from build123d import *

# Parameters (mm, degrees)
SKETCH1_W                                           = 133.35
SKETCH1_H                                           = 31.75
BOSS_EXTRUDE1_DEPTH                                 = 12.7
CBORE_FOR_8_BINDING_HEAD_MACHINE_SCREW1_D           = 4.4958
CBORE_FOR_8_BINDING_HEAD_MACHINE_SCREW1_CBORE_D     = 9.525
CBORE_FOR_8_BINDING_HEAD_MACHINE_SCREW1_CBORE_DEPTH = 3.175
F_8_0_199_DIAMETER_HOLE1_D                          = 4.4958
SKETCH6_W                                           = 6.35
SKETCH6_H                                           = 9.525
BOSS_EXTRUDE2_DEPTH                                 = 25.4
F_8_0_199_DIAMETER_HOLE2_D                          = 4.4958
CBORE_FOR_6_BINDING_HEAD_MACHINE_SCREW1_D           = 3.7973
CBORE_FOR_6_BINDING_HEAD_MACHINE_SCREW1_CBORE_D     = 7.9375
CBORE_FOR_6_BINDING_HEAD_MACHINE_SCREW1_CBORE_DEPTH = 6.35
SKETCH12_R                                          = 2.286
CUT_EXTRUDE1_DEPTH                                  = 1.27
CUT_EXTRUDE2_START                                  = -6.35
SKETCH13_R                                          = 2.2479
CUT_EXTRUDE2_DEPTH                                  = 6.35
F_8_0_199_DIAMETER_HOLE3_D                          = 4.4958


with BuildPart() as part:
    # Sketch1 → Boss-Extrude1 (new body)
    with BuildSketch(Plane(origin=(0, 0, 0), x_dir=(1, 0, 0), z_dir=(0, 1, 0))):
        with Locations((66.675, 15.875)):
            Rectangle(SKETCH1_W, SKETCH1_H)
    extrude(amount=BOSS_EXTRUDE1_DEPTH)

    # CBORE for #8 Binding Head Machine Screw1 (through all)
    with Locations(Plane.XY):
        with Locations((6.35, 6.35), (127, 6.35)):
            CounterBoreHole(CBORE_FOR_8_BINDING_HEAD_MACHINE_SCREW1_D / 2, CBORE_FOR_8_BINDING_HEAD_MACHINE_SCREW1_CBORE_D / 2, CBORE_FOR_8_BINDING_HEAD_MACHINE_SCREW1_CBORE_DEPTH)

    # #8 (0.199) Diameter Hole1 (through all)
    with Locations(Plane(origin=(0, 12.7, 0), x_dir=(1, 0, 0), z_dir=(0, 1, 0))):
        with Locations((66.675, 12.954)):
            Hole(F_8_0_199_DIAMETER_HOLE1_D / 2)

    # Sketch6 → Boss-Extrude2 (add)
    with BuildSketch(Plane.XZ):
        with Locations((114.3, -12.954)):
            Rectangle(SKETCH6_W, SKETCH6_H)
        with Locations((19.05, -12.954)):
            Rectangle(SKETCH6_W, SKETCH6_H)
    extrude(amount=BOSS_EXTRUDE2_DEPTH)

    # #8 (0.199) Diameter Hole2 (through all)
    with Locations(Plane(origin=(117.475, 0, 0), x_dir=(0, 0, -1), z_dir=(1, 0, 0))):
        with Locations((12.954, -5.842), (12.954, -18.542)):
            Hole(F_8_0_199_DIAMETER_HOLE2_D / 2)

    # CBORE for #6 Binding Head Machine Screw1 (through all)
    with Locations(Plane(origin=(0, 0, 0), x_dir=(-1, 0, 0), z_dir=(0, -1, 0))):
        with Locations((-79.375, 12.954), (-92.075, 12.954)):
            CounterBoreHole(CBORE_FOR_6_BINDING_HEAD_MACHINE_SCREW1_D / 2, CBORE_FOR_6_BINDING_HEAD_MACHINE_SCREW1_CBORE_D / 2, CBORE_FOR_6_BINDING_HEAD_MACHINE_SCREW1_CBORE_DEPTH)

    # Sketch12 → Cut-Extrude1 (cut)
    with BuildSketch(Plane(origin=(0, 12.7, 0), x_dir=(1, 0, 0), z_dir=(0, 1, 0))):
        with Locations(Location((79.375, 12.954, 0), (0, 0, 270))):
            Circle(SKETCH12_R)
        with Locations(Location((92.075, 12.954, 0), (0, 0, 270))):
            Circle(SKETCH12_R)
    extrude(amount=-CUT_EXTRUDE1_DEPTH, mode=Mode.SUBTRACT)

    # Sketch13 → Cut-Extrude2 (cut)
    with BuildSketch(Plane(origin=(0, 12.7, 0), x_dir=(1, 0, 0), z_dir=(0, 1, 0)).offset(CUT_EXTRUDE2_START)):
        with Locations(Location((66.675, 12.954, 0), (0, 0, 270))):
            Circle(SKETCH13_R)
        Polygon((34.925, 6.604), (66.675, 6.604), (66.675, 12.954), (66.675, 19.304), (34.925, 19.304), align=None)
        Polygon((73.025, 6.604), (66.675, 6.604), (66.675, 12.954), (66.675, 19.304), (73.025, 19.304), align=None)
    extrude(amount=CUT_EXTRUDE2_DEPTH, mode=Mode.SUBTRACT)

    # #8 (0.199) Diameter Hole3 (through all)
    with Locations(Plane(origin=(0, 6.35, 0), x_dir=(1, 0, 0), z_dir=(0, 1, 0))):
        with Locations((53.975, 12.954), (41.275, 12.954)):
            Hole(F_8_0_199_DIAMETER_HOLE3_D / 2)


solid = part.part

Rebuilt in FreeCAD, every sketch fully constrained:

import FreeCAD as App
import Part
import Sketcher
from FreeCAD import Vector
Q = App.Units.Quantity

doc = App.newDocument("Part")
body = doc.addObject("PartDesign::Body", "Body")

# Sketch on XZ plane
sketch1 = body.newObject("Sketcher::SketchObject", "Sketch")
sketch1.AttachmentSupport = (doc.getObject("XZ_Plane"), [""])
sketch1.MapMode = "FlatFace"
sketch1.addGeometry([
    Part.LineSegment(Vector(0, -32, 0), Vector(0, 0, 0)),
    Part.LineSegment(Vector(0, 0, 0), Vector(133, 0, 0)),
    Part.LineSegment(Vector(133, 0, 0), Vector(133, -32, 0)),
    Part.LineSegment(Vector(133, -32, 0), Vector(0, -32, 0)),
], False)
sketch1.addConstraint([
    Sketcher.Constraint("Coincident", 0, 2, 1, 1),
    Sketcher.Constraint("Coincident", 1, 2, 2, 1),
    Sketcher.Constraint("Coincident", 2, 2, 3, 1),
    Sketcher.Constraint("Coincident", 3, 2, 0, 1),
    Sketcher.Constraint("Vertical", 0),
    Sketcher.Constraint("Horizontal", 1),
    Sketcher.Constraint("Vertical", 2),
    Sketcher.Constraint("Horizontal", 3),
    Sketcher.Constraint("Coincident", 0, 2, -1, 1),
    Sketcher.Constraint("DistanceX", 1, 1, 1, 2, Q("5.25 in")),
    Sketcher.Constraint("DistanceY", 0, 1, 0, 2, Q("1.25 in")),
])
pad1 = body.newObject("PartDesign::Pad", "Pad")
pad1.Profile = sketch1
pad1.Length = Q("0.5 in")
pad1.Reversed = True

# Sketch on XY plane
sketch2 = body.newObject("Sketcher::SketchObject", "Sketch001")
sketch2.AttachmentSupport = (doc.getObject("XY_Plane"), [""])
sketch2.MapMode = "FlatFace"
sketch2.addGeometry([
    Part.Circle(Vector(6.3, 6.3, 0), Vector(0, 0, 1), 2.2),
    Part.Circle(Vector(127, 6.3, 0), Vector(0, 0, 1), 2.2),
], False)
sketch2.addConstraint([
    Sketcher.Constraint("Equal", 0, 1),
    Sketcher.Constraint("Horizontal", 0, 3, 1, 3),
    Sketcher.Constraint("Diameter", 0, Q("0.177 in")),
    Sketcher.Constraint("DistanceX", -1, 1, 1, 3, Q("5 in")),
    Sketcher.Constraint("DistanceX", -1, 1, 0, 3, Q("0.25 in")),
    Sketcher.Constraint("DistanceY", -1, 1, 0, 3, Q("0.25 in")),
])
doc.recompute()
hole = body.newObject("PartDesign::Hole", "Hole")
hole.Profile = sketch2
hole.ThreadType = "None"
hole.Diameter = Q("0.177 in")
hole.DepthType = "ThroughAll"
hole.HoleCutType = "Counterbore"
hole.HoleCutDiameter = Q("0.375 in")
hole.HoleCutDepth = Q("0.125 in")

# Sketch on XZ plane
sketch3 = body.newObject("Sketcher::SketchObject", "Sketch002")
sketch3.AttachmentSupport = (doc.getObject("XZ_Plane"), [""])
sketch3.MapMode = "FlatFace"
sketch3.AttachmentOffset = App.Placement(Vector(0, 0, -0.5 * 25.4), App.Rotation())
sketch3.addGeometry(Part.Circle(Vector(66.7, -13, 0), Vector(0, 0, 1), 2.2), False)
sketch3.addConstraint([
    Sketcher.Constraint("Diameter", 0, Q("0.177 in")),
    Sketcher.Constraint("DistanceY", 0, 3, -1, 1, Q("0.51 in")),
    Sketcher.Constraint("DistanceX", -1, 1, 0, 3, Q("2.625 in")),
])
doc.recompute()
hole2 = body.newObject("PartDesign::Hole", "Hole001")
hole2.Profile = sketch3
hole2.ThreadType = "None"
hole2.Diameter = Q("0.177 in")
hole2.DepthType = "ThroughAll"
hole2.Reversed = True

# Sketch on XZ plane
sketch4 = body.newObject("Sketcher::SketchObject", "Sketch003")
sketch4.AttachmentSupport = (doc.getObject("XZ_Plane"), [""])
sketch4.MapMode = "FlatFace"
sketch4.addGeometry([
    Part.LineSegment(Vector(111, -8, 0), Vector(111, -18, 0)),  # 0
    Part.LineSegment(Vector(111, -18, 0), Vector(117, -18, 0)),  # 1
    Part.LineSegment(Vector(117, -18, 0), Vector(117, -8, 0)),  # 2
    Part.LineSegment(Vector(117, -8, 0), Vector(111, -8, 0)),  # 3
    Part.LineSegment(Vector(16, -8, 0), Vector(16, -18, 0)),  # 4
    Part.LineSegment(Vector(16, -18, 0), Vector(22, -18, 0)),  # 5
    Part.LineSegment(Vector(22, -18, 0), Vector(22, -8, 0)),  # 6
    Part.LineSegment(Vector(22, -8, 0), Vector(16, -8, 0)),  # 7
], False)
sketch4.addConstraint([
    Sketcher.Constraint("Coincident", 0, 2, 1, 1),
    Sketcher.Constraint("Coincident", 1, 2, 2, 1),
    Sketcher.Constraint("Coincident", 2, 2, 3, 1),
    Sketcher.Constraint("Coincident", 3, 2, 0, 1),
    Sketcher.Constraint("Coincident", 4, 2, 5, 1),
    Sketcher.Constraint("Coincident", 5, 2, 6, 1),
    Sketcher.Constraint("Coincident", 6, 2, 7, 1),
    Sketcher.Constraint("Coincident", 7, 2, 4, 1),
    Sketcher.Constraint("Vertical", 0),
    Sketcher.Constraint("Horizontal", 1),
    Sketcher.Constraint("Vertical", 2),
    Sketcher.Constraint("Horizontal", 3),
    Sketcher.Constraint("Vertical", 4),
    Sketcher.Constraint("Horizontal", 5),
    Sketcher.Constraint("Vertical", 6),
    Sketcher.Constraint("Horizontal", 7),
    Sketcher.Constraint("Horizontal", 1, 2, 4, 2),
    Sketcher.Constraint("Horizontal", 3, 2, 6, 2),
    Sketcher.Constraint("Equal", 3, 5),
    Sketcher.Constraint("DistanceX", 4, 2, 1, 2, Q("4 in")),
    Sketcher.Constraint("DistanceX", 1, 1, 1, 2, Q("0.25 in")),
    Sketcher.Constraint("DistanceY", 0, 2, 0, 1, Q("0.375 in")),
    Sketcher.Constraint("DistanceX", -1, 1, 0, 2, Q("4.375 in")),
    Sketcher.Constraint("DistanceY", 0, 2, -1, 1, Q("0.6975 in")),
])
pad2 = body.newObject("PartDesign::Pad", "Pad001")
pad2.Profile = sketch4
pad2.Length = Q("1 in")

# Sketch on YZ plane
sketch5 = body.newObject("Sketcher::SketchObject", "Sketch004")
sketch5.AttachmentSupport = (doc.getObject("YZ_Plane"), [""])
sketch5.MapMode = "FlatFace"
sketch5.AttachmentOffset = App.Placement(Vector(0, 0, 4.625 * 25.4), App.Rotation())
sketch5.addGeometry([
    Part.Circle(Vector(-5.8, -13, 0), Vector(0, 0, 1), 2.2),
    Part.Circle(Vector(-18.5, -13, 0), Vector(0, 0, 1), 2.2),
], False)
sketch5.addConstraint([
    Sketcher.Constraint("Equal", 0, 1),
    Sketcher.Constraint("Horizontal", 0, 3, 1, 3),
    Sketcher.Constraint("Diameter", 0, Q("0.177 in")),
    Sketcher.Constraint("DistanceX", 1, 3, 0, 3, Q("0.5 in")),
    Sketcher.Constraint("DistanceX", 0, 3, -1, 1, Q("0.23 in")),
    Sketcher.Constraint("DistanceY", 0, 3, -1, 1, Q("0.51 in")),
])
doc.recompute()
hole3 = body.newObject("PartDesign::Hole", "Hole002")
hole3.Profile = sketch5
hole3.ThreadType = "None"
hole3.Diameter = Q("0.177 in")
hole3.DepthType = "ThroughAll"

# Sketch on XZ plane
sketch6 = body.newObject("Sketcher::SketchObject", "Sketch005")
sketch6.AttachmentSupport = (doc.getObject("XZ_Plane"), [""])
sketch6.MapMode = "FlatFace"
sketch6.addGeometry([
    Part.Circle(Vector(79.4, -13, 0), Vector(0, 0, 1), 1.9),
    Part.Circle(Vector(92.1, -13, 0), Vector(0, 0, 1), 1.9),
], False)
sketch6.addConstraint([
    Sketcher.Constraint("Equal", 0, 1),
    Sketcher.Constraint("Horizontal", 0, 3, 1, 3),
    Sketcher.Constraint("Diameter", 0, Q("0.1495 in")),
    Sketcher.Constraint("DistanceX", 0, 3, 1, 3, Q("0.5 in")),
    Sketcher.Constraint("DistanceY", 0, 3, -1, 1, Q("0.51 in")),
    Sketcher.Constraint("DistanceX", -1, 1, 0, 3, Q("3.125 in")),
])
doc.recompute()
hole4 = body.newObject("PartDesign::Hole", "Hole003")
hole4.Profile = sketch6
hole4.ThreadType = "None"
hole4.Diameter = Q("0.1495 in")
hole4.DepthType = "ThroughAll"
hole4.HoleCutType = "Counterbore"
hole4.HoleCutDiameter = Q("0.3125 in")
hole4.HoleCutDepth = Q("0.25 in")

# Sketch on XZ plane
sketch7 = body.newObject("Sketcher::SketchObject", "Sketch006")
sketch7.AttachmentSupport = (doc.getObject("XZ_Plane"), [""])
sketch7.MapMode = "FlatFace"
sketch7.AttachmentOffset = App.Placement(Vector(0, 0, -0.5 * 25.4), App.Rotation())
sketch7.addGeometry([
    Part.Circle(Vector(79.4, -13, 0), Vector(0, 0, 1), 2.3),
    Part.Circle(Vector(92.1, -13, 0), Vector(0, 0, 1), 2.3),
], False)
sketch7.addConstraint([
    Sketcher.Constraint("Equal", 0, 1),
    Sketcher.Constraint("Horizontal", 0, 3, 1, 3),
    Sketcher.Constraint("Diameter", 0, Q("0.18 in")),
    Sketcher.Constraint("DistanceX", 0, 3, 1, 3, Q("0.5 in")),
    Sketcher.Constraint("DistanceY", 0, 3, -1, 1, Q("0.51 in")),
    Sketcher.Constraint("DistanceX", -1, 1, 0, 3, Q("3.125 in")),
])
pocket1 = body.newObject("PartDesign::Pocket", "Pocket")
pocket1.Profile = sketch7
pocket1.Length = Q("0.05 in")
pocket1.Reversed = True

# Sketch on XZ plane
sketch8 = body.newObject("Sketcher::SketchObject", "Sketch007")
sketch8.AttachmentSupport = (doc.getObject("XZ_Plane"), [""])
sketch8.MapMode = "FlatFace"
sketch8.AttachmentOffset = App.Placement(Vector(0, 0, -0.25 * 25.4), App.Rotation())
sketch8.addGeometry([
    Part.LineSegment(Vector(35, -7, 0), Vector(73, -7, 0)),
    Part.LineSegment(Vector(73, -7, 0), Vector(73, -19, 0)),
    Part.LineSegment(Vector(73, -19, 0), Vector(35, -19, 0)),
    Part.LineSegment(Vector(35, -19, 0), Vector(35, -7, 0)),
], False)
sketch8.addConstraint([
    Sketcher.Constraint("Coincident", 0, 2, 1, 1),
    Sketcher.Constraint("Coincident", 1, 2, 2, 1),
    Sketcher.Constraint("Coincident", 2, 2, 3, 1),
    Sketcher.Constraint("Coincident", 3, 2, 0, 1),
    Sketcher.Constraint("Horizontal", 0),
    Sketcher.Constraint("Vertical", 1),
    Sketcher.Constraint("Horizontal", 2),
    Sketcher.Constraint("Vertical", 3),
    Sketcher.Constraint("DistanceX", 0, 1, 0, 2, Q("1.5 in")),
    Sketcher.Constraint("DistanceY", 1, 2, 1, 1, Q("0.5 in")),
    Sketcher.Constraint("DistanceY", 0, 2, -1, 1, Q("0.26 in")),
    Sketcher.Constraint("DistanceX", -1, 1, 0, 2, Q("2.875 in")),
])
pocket2 = body.newObject("PartDesign::Pocket", "Pocket001")
pocket2.Profile = sketch8
pocket2.Length = Q("0.25 in")

# Sketch on XZ plane
sketch9 = body.newObject("Sketcher::SketchObject", "Sketch008")
sketch9.AttachmentSupport = (doc.getObject("XZ_Plane"), [""])
sketch9.MapMode = "FlatFace"
sketch9.AttachmentOffset = App.Placement(Vector(0, 0, -0.25 * 25.4), App.Rotation())
sketch9.addGeometry([
    Part.Circle(Vector(54, -13, 0), Vector(0, 0, 1), 2.2),
    Part.Circle(Vector(41.3, -13, 0), Vector(0, 0, 1), 2.2),
], False)
sketch9.addConstraint([
    Sketcher.Constraint("Equal", 0, 1),
    Sketcher.Constraint("Horizontal", 0, 3, 1, 3),
    Sketcher.Constraint("Diameter", 0, Q("0.177 in")),
    Sketcher.Constraint("DistanceX", 1, 3, 0, 3, Q("0.5 in")),
    Sketcher.Constraint("DistanceY", 0, 3, -1, 1, Q("0.51 in")),
    Sketcher.Constraint("DistanceX", -1, 1, 0, 3, Q("2.125 in")),
])
doc.recompute()
hole5 = body.newObject("PartDesign::Hole", "Hole004")
hole5.Profile = sketch9
hole5.ThreadType = "None"
hole5.Diameter = Q("0.177 in")
hole5.DepthType = "ThroughAll"
hole5.Reversed = True

doc.recompute()
